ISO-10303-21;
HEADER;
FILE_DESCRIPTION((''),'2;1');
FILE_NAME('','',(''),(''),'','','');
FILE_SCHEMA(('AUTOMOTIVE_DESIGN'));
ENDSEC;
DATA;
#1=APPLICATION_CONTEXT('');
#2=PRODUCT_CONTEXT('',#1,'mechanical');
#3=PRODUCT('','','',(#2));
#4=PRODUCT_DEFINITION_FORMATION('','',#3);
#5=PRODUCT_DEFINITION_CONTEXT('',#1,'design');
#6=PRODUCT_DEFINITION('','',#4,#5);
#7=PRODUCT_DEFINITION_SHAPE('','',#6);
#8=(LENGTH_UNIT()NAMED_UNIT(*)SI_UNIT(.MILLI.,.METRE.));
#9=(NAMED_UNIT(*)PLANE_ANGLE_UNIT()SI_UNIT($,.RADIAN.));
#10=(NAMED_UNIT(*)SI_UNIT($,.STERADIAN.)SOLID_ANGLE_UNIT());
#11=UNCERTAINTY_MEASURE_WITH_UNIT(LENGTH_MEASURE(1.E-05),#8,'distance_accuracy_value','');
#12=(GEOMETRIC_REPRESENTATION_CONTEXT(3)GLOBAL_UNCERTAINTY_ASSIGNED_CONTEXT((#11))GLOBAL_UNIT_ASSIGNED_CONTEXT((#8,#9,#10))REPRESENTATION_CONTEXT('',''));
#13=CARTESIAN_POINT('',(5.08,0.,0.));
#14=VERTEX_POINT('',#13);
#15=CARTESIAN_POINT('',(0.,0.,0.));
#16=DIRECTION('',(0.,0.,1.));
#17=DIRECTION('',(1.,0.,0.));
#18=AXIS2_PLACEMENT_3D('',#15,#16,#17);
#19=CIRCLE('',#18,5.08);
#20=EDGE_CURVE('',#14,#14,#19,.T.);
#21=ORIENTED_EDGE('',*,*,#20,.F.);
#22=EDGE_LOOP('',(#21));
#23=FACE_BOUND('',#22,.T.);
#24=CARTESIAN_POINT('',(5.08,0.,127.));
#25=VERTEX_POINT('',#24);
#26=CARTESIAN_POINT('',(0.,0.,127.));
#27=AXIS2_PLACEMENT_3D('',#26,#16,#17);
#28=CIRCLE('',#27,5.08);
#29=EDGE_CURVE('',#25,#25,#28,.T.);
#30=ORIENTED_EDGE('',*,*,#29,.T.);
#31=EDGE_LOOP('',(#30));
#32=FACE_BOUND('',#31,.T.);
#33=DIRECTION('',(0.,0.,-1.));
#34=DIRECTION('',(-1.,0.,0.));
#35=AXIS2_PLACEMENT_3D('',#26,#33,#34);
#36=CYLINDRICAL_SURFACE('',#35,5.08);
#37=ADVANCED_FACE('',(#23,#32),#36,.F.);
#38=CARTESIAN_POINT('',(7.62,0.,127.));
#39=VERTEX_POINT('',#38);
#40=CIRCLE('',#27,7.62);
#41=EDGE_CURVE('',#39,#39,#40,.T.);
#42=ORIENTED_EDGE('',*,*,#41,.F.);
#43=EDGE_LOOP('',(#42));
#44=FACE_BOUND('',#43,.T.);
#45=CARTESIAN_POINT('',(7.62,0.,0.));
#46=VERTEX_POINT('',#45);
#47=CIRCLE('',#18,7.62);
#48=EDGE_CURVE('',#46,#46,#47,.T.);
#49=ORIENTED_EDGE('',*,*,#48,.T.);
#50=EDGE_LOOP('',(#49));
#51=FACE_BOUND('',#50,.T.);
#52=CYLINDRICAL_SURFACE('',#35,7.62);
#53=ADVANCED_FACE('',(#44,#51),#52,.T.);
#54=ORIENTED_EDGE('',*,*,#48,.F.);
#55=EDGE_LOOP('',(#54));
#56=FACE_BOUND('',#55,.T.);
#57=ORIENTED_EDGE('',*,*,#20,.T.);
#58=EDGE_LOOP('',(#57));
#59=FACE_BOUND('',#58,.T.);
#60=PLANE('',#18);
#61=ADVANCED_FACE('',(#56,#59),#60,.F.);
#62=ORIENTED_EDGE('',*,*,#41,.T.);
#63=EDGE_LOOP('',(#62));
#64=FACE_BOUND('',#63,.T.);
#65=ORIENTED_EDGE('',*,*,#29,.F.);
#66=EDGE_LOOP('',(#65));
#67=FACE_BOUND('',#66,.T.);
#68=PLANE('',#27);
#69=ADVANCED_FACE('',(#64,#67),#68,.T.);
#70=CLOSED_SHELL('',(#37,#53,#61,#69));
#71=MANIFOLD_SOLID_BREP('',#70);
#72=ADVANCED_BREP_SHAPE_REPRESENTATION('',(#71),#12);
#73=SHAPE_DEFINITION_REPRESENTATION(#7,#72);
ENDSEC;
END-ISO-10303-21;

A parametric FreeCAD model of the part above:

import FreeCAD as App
import Part
import Sketcher
Q = App.Units.Quantity

doc = App.newDocument("Part")
params = doc.addObject("Spreadsheet::Sheet", "Params")
for row, (alias, value) in enumerate([
    ("sketch1_diameter", "0.6 in"),
    ("sketch1_diameter2", "0.4 in"),
    ("pad1_length", "5 in"),
], start=1):
    params.set(f"A{row}", alias)
    params.set(f"B{row}", "=" + value)
    params.setAlias(f"B{row}", alias)

body = doc.addObject("PartDesign::Body", "Body")

sketch1 = body.newObject("Sketcher::SketchObject", "Sketch")
sketch1.AttachmentSupport = (doc.getObject("XY_Plane"), [""])
sketch1.MapMode = "FlatFace"
sketch1.addGeometry(Part.Circle(App.Vector(0, 0, 0), App.Vector(0, 0, 1), 7.62), False)
sketch1.addGeometry(Part.Circle(App.Vector(0, 0, 0), App.Vector(0, 0, 1), 5.08), False)
sketch1.addConstraint(Sketcher.Constraint("Coincident", 0, 3, -1, 1))
sketch1.addConstraint(Sketcher.Constraint("Coincident", 1, 3, -1, 1))
sketch1.addConstraint(Sketcher.Constraint("Diameter", 0, Q("0.6 in")))
sketch1.addConstraint(Sketcher.Constraint("Diameter", 1, Q("0.4 in")))
sketch1.setExpression("Constraints[2]", "Params.sketch1_diameter")
sketch1.setExpression("Constraints[3]", "Params.sketch1_diameter2")
pad1 = body.newObject("PartDesign::Pad", "Pad")
pad1.Profile = sketch1
pad1.setExpression("Length", "Params.pad1_length")

doc.recompute()
